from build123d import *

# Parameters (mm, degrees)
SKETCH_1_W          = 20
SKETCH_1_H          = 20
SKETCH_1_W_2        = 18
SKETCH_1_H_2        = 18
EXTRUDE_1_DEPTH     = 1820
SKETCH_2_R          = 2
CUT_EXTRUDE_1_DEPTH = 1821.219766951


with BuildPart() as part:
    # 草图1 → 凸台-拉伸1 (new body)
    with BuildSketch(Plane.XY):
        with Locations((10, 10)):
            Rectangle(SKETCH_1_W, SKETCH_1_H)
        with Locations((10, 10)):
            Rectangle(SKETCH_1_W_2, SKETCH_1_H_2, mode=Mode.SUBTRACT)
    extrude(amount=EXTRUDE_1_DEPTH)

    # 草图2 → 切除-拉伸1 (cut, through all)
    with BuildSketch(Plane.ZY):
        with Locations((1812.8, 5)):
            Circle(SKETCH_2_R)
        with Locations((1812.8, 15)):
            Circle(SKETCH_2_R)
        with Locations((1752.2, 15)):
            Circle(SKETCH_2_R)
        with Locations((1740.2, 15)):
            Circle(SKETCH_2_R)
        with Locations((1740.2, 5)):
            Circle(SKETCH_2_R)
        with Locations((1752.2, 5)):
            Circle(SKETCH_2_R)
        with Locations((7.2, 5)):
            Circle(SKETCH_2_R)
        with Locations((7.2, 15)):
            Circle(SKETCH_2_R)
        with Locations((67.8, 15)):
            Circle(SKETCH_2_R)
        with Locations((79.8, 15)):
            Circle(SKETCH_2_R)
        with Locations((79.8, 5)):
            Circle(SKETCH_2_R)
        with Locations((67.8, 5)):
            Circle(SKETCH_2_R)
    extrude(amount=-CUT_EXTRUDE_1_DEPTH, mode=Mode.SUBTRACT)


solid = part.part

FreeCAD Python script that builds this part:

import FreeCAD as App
import Part
import Sketcher
from FreeCAD import Vector
Q = App.Units.Quantity


def add_polygon(sketch, points):
    """Adds a closed chain of lines whose ends are joined by coincident constraints."""
    first, n = sketch.GeometryCount, len(points)
    for a, b in zip(points, points[1:] + points[:1]):
        sketch.addGeometry(Part.LineSegment(App.Vector(*a, 0), App.Vector(*b, 0)), False)
    for i in range(n):
        sketch.addConstraint(Sketcher.Constraint("Coincident", first + i, 2, first + (i + 1) % n, 1))

doc = App.newDocument("Part")
body = doc.addObject("PartDesign::Body", "Body")

# Sketch on XY plane
sketch1 = body.newObject("Sketcher::SketchObject", "Sketch")
sketch1.AttachmentSupport = (doc.getObject("XY_Plane"), [""])
sketch1.MapMode = "FlatFace"
add_polygon(sketch1, [(0, 20), (0, 0), (20, 0), (20, 20)])  # lines 0-3
add_polygon(sketch1, [(19, 1), (1, 1), (1, 19), (19, 19)])  # lines 4-7
sketch1.addConstraint([
    Sketcher.Constraint("Vertical", 0),
    Sketcher.Constraint("Horizontal", 1),
    Sketcher.Constraint("Vertical", 2),
    Sketcher.Constraint("Horizontal", 3),
    Sketcher.Constraint("Horizontal", 4),
    Sketcher.Constraint("Vertical", 5),
    Sketcher.Constraint("Horizontal", 6),
    Sketcher.Constraint("Vertical", 7),
    Sketcher.Constraint("Coincident", 0, 2, -1, 1),
    Sketcher.Constraint("Equal", 3, 0),
    Sketcher.Constraint("Equal", 6, 5),
    Sketcher.Constraint("DistanceX", 1, 1, 1, 2, Q("20 mm")),
    Sketcher.Constraint("DistanceX", 4, 2, 4, 1, Q("18 mm")),
    Sketcher.Constraint("DistanceX", -1, 1, 4, 2, Q("1 mm")),
    Sketcher.Constraint("DistanceY", -1, 1, 4, 2, Q("1 mm")),
])
pad1 = body.newObject("PartDesign::Pad", "Pad")
pad1.Profile = sketch1
pad1.Length = 1820

# Sketch on YZ plane
sketch2 = body.newObject("Sketcher::SketchObject", "Sketch001")
sketch2.AttachmentSupport = (doc.getObject("YZ_Plane"), [""])
sketch2.MapMode = "FlatFace"
sketch2.addGeometry([
    Part.Circle(Vector(5, 1812.8, 0), Vector(0, 0, 1), 2),  # 0
    Part.Circle(Vector(15, 1812.8, 0), Vector(0, 0, 1), 2),  # 1
    Part.Circle(Vector(15, 1752.2, 0), Vector(0, 0, 1), 2),  # 2
    Part.Circle(Vector(15, 1740.2, 0), Vector(0, 0, 1), 2),  # 3
    Part.Circle(Vector(5, 1740.2, 0), Vector(0, 0, 1), 2),  # 4
    Part.Circle(Vector(5, 1752.2, 0), Vector(0, 0, 1), 2),  # 5
    Part.Circle(Vector(5, 7.2, 0), Vector(0, 0, 1), 2),  # 6
    Part.Circle(Vector(15, 7.2, 0), Vector(0, 0, 1), 2),  # 7
    Part.Circle(Vector(15, 67.8, 0), Vector(0, 0, 1), 2),  # 8
    Part.Circle(Vector(15, 79.8, 0), Vector(0, 0, 1), 2),  # 9
    Part.Circle(Vector(5, 79.8, 0), Vector(0, 0, 1), 2),  # 10
    Part.Circle(Vector(5, 67.8, 0), Vector(0, 0, 1), 2),  # 11
], False)
sketch2.addConstraint([
    Sketcher.Constraint("Equal", 0, 1),
    Sketcher.Constraint("Equal", 1, 2),
    Sketcher.Constraint("Equal", 2, 3),
    Sketcher.Constraint("Equal", 3, 4),
    Sketcher.Constraint("Equal", 4, 5),
    Sketcher.Constraint("Equal", 5, 6),
    Sketcher.Constraint("Equal", 6, 7),
    Sketcher.Constraint("Equal", 7, 8),
    Sketcher.Constraint("Equal", 8, 9),
    Sketcher.Constraint("Equal", 9, 10),
    Sketcher.Constraint("Equal", 10, 11),
    Sketcher.Constraint("Horizontal", 0, 3, 1, 3),
    Sketcher.Constraint("Horizontal", 3, 3, 4, 3),
    Sketcher.Constraint("Horizontal", 2, 3, 5, 3),
    Sketcher.Constraint("Horizontal", 6, 3, 7, 3),
    Sketcher.Constraint("Horizontal", 9, 3, 10, 3),
    Sketcher.Constraint("Horizontal", 8, 3, 11, 3),
    Sketcher.Constraint("Vertical", 1, 3, 2, 3),
    Sketcher.Constraint("Vertical", 2, 3, 3, 3),
    Sketcher.Constraint("Vertical", 0, 3, 4, 3),
    Sketcher.Constraint("Vertical", 4, 3, 5, 3),
    Sketcher.Constraint("Vertical", 5, 3, 6, 3),
    Sketcher.Constraint("Vertical", 3, 3, 7, 3),
    Sketcher.Constraint("Vertical", 7, 3, 8, 3),
    Sketcher.Constraint("Vertical", 8, 3, 9, 3),
    Sketcher.Constraint("Vertical", 6, 3, 10, 3),
    Sketcher.Constraint("Vertical", 10, 3, 11, 3),
    Sketcher.Constraint("Diameter", 0, Q("4 mm")),
    Sketcher.Constraint("DistanceX", -1, 1, 0, 3, Q("5 mm")),
    Sketcher.Constraint("DistanceX", -1, 1, 1, 3, Q("15 mm")),
    Sketcher.Constraint("DistanceY", 3, 3, 2, 3, Q("12 mm")),
    Sketcher.Constraint("DistanceY", 6, 3, 4, 3, Q("1733 mm")),
    Sketcher.Constraint("DistanceY", 8, 3, 9, 3, Q("12 mm")),
    Sketcher.Constraint("DistanceY", -1, 1, 0, 3, Q("1812.8 mm")),
    Sketcher.Constraint("DistanceY", -1, 1, 2, 3, Q("1752.2 mm")),
    Sketcher.Constraint("DistanceY", -1, 1, 8, 3, Q("67.8 mm")),
])
pocket1 = body.newObject("PartDesign::Pocket", "Pocket")
pocket1.Profile = sketch2
pocket1.Type = "ThroughAll"
pocket1.Reversed = True

doc.recompute()
